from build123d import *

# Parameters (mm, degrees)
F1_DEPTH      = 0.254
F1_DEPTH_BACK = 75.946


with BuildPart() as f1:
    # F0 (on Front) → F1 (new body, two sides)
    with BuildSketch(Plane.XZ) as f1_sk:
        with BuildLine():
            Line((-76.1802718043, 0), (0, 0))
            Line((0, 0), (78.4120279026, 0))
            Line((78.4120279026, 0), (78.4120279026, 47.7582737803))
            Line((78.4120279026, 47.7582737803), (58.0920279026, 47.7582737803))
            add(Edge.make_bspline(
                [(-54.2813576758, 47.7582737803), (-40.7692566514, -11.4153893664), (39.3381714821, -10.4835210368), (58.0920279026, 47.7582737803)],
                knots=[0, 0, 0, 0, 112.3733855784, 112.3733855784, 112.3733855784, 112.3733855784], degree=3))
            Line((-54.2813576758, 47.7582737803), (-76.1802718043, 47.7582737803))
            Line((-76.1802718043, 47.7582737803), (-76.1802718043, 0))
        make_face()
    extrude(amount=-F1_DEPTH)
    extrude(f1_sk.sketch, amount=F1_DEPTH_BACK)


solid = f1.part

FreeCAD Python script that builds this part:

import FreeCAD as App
import Part
import Sketcher

V = App.Vector
Q = App.Units.Quantity

doc = App.newDocument("Part")
body = doc.addObject("PartDesign::Body", "Body")

# Sketch on XZ plane
sketch1 = body.newObject("Sketcher::SketchObject", "Sketch")
sketch1.AttachmentSupport = (doc.getObject("XZ_Plane"), [""])
sketch1.MapMode = "FlatFace"
sketch1.addGeometry([
    Part.LineSegment(V(-76.180272, 0, 0), V(78.412028, 0, 0)),  # 0
    Part.LineSegment(V(78.412028, 0, 0), V(78.412028, 47.758274, 0)),  # 1
    Part.LineSegment(V(78.412028, 47.758274, 0), V(58.092028, 47.758274, 0)),  # 2
    Part.BSplineCurve([V(-54.281358, 47.758274, 0), V(-40.769257, -11.415389, 0), V(39.338171, -10.483521, 0), V(58.092028, 47.758274, 0)], [4, 4], [0, 112.373385578], False, 3, [1, 1, 1, 1], False),  # 3
    Part.LineSegment(V(-54.281358, 47.758274, 0), V(-76.180272, 47.758274, 0)),  # 4
    Part.LineSegment(V(-76.180272, 47.758274, 0), V(-76.180272, 0, 0)),  # 5
], False)
sketch1.addConstraint([
    Sketcher.Constraint("Block", 3),
    Sketcher.Constraint("Coincident", 0, 2, 1, 1),
    Sketcher.Constraint("Coincident", 1, 2, 2, 1),
    Sketcher.Constraint("Coincident", 2, 2, 3, 2),
    Sketcher.Constraint("Coincident", 3, 1, 4, 1),
    Sketcher.Constraint("Coincident", 4, 2, 5, 1),
    Sketcher.Constraint("Coincident", 5, 2, 0, 1),
    Sketcher.Constraint("Horizontal", 0),
    Sketcher.Constraint("Vertical", 1),
    Sketcher.Constraint("Horizontal", 2),
    Sketcher.Constraint("Horizontal", 4),
    Sketcher.Constraint("Vertical", 5),
    Sketcher.Constraint("PointOnObject", 0, 2, -1),
    Sketcher.Constraint("DistanceX", 2, 2, 2, 1, Q("0.8 in")),
    Sketcher.Constraint("DistanceX", 0, 1, 0, 2, 154.5923),
])
pad1 = body.newObject("PartDesign::Pad", "Pad")
pad1.Profile = sketch1
pad1.Type = "TwoLengths"
pad1.Length = Q("0.01 in")
pad1.Length2 = Q("2.99 in")
pad1.Reversed = True

doc.recompute()
